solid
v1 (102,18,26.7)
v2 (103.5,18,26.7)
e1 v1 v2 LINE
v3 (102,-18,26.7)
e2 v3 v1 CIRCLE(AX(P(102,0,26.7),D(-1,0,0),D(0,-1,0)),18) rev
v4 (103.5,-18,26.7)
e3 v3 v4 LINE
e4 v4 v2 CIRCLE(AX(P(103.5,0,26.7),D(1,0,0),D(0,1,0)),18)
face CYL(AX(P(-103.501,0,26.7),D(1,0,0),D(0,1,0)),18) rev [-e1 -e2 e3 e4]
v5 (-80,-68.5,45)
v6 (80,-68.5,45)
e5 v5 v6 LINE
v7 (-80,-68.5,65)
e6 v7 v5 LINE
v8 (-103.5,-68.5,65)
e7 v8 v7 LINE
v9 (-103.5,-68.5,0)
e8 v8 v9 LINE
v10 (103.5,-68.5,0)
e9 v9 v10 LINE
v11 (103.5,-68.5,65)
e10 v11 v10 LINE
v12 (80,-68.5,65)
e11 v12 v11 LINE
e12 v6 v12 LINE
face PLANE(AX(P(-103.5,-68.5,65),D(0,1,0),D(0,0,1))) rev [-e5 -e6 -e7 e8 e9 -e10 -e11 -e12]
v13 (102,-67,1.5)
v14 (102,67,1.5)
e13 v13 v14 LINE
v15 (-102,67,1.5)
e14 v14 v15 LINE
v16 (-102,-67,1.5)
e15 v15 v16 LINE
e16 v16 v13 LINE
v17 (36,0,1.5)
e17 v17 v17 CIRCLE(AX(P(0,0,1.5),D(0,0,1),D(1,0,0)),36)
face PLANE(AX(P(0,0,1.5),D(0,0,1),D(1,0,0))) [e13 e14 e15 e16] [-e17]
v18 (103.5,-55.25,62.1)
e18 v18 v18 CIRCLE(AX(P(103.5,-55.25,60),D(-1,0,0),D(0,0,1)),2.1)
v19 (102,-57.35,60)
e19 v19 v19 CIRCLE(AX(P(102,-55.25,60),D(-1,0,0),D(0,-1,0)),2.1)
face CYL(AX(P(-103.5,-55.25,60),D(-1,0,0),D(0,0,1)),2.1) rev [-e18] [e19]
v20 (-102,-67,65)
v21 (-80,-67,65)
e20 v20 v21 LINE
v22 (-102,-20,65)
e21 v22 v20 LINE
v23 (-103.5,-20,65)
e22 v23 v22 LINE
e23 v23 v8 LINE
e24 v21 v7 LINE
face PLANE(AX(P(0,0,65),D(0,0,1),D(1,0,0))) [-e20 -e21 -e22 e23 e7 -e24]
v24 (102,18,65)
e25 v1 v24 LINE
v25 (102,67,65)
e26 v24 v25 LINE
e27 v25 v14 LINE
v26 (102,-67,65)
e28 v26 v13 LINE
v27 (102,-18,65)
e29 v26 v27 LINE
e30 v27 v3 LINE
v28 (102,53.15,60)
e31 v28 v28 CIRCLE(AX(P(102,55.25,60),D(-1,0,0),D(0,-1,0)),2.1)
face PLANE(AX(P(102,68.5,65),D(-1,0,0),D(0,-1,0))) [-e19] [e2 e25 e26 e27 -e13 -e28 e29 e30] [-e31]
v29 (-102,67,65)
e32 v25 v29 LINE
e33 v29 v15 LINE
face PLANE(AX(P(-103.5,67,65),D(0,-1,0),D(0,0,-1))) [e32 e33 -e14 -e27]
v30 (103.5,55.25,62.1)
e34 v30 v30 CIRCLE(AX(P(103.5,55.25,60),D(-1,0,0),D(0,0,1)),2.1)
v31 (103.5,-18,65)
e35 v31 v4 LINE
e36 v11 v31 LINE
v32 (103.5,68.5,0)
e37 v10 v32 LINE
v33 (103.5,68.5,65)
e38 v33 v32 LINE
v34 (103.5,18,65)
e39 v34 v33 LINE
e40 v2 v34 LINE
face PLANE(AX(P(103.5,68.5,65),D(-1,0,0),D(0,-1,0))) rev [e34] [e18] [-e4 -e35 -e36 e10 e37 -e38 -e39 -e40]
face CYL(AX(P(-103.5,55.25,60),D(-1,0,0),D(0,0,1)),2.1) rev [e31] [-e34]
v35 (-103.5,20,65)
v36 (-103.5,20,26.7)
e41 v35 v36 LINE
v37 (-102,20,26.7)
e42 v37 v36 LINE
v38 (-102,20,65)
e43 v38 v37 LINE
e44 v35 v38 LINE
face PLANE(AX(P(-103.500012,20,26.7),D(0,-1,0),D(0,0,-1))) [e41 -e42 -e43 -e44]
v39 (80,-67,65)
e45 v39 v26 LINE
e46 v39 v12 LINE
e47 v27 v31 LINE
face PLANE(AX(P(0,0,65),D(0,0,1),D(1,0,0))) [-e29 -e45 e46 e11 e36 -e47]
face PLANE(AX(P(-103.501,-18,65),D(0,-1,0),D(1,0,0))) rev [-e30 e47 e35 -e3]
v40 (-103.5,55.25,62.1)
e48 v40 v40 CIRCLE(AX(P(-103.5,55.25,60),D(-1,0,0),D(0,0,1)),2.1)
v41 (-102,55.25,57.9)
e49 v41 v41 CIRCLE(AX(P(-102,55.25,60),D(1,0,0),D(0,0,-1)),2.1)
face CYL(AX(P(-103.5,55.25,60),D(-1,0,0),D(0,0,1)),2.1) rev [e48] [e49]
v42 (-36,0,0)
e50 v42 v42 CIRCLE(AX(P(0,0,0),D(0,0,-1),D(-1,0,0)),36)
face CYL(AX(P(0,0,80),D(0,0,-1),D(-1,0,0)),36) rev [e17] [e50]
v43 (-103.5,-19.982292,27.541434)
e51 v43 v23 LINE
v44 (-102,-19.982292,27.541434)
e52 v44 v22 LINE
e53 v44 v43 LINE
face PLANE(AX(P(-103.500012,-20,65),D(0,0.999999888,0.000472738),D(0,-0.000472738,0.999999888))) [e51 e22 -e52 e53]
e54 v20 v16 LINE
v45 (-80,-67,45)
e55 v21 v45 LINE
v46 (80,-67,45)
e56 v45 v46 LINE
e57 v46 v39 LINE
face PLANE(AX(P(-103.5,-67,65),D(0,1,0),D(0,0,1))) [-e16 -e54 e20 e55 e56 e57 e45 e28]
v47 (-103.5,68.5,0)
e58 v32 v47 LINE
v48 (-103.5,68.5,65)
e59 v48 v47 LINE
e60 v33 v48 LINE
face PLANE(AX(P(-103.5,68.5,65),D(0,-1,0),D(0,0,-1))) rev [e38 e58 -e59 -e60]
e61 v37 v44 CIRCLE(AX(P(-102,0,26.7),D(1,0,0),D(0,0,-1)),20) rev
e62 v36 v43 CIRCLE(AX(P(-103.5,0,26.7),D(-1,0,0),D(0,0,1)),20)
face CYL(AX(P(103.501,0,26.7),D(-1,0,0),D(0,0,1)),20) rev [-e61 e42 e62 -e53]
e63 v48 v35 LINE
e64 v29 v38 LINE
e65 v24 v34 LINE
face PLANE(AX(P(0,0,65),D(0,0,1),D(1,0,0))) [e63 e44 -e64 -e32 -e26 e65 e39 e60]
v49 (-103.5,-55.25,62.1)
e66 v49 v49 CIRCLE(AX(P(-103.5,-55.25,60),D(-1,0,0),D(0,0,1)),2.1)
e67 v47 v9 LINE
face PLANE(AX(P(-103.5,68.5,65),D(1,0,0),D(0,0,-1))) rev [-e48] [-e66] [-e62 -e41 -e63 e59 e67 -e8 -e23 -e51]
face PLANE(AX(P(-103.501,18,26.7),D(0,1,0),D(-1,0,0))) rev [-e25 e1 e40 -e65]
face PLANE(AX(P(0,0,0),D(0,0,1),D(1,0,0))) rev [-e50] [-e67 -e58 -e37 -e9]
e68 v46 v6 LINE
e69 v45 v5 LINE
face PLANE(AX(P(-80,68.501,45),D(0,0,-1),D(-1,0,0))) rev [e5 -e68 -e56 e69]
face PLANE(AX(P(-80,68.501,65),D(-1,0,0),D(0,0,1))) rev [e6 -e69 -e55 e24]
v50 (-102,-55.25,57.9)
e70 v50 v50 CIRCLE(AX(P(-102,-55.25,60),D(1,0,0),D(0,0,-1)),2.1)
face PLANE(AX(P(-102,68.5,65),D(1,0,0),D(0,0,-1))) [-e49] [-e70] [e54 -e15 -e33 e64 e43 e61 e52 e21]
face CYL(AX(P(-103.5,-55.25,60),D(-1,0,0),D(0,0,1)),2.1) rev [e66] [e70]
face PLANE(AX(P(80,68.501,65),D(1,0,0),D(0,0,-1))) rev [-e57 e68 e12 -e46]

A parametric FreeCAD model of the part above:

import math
import FreeCAD as App
import Part
import Sketcher
Q = App.Units.Quantity


def faces_at(feature, points):
    """Names of the faces that lie closest to the given points."""
    faces = feature.Shape.Faces
    near = lambda p: min(range(len(faces)), key=lambda i: faces[i].distToShape(Part.Vertex(*p))[0])
    return sorted({f"Face{near(p) + 1}" for p in points})


def add_polygon(sketch, points):
    """Adds a closed chain of lines whose ends are joined by coincident constraints."""
    first, n = sketch.GeometryCount, len(points)
    for a, b in zip(points, points[1:] + points[:1]):
        sketch.addGeometry(Part.LineSegment(App.Vector(*a, 0), App.Vector(*b, 0)), False)
    for i in range(n):
        sketch.addConstraint(Sketcher.Constraint("Coincident", first + i, 2, first + (i + 1) % n, 1))

doc = App.newDocument("Part")
body = doc.addObject("PartDesign::Body", "Body")

sketch1 = doc.addObject("Sketcher::SketchObject", "Sketch")
body.addObject(sketch1)
sketch1.AttachmentSupport = (doc.XY_Plane, [""])
sketch1.MapMode = "FlatFace"
add_polygon(sketch1, [(-104, 68), (-104, -68), (104, -68), (104, 68)])
sketch1.addConstraint([
    Sketcher.Constraint("Vertical", 0),
    Sketcher.Constraint("Horizontal", 1),
    Sketcher.Constraint("Vertical", 2),
    Sketcher.Constraint("Horizontal", 3),
    Sketcher.Constraint("Symmetric", 0, 2, 2, 2, -1, 1),
    Sketcher.Constraint("DistanceX", 1, 1, 1, 2, Q("207 mm")),
    Sketcher.Constraint("DistanceY", 0, 2, 0, 1, Q("137 mm")),
])
pad1 = doc.addObject("PartDesign::Pad", "Pad")
body.addObject(pad1)
pad1.Profile = sketch1
pad1.Length = 65
doc.recompute()

thickness = doc.addObject("PartDesign::Thickness", "Thickness")
body.addObject(thickness)
thickness.Base = (pad1, faces_at(pad1, [(0, 0, 65)]))
thickness.Value = 1.5
thickness.Reversed = True
thickness.Join = "Intersection"

sketch2 = doc.addObject("Sketcher::SketchObject", "Sketch001")
body.addObject(sketch2)
sketch2.AttachmentSupport = (doc.XY_Plane, [""])
sketch2.MapMode = "FlatFace"
sketch2.addGeometry(Part.Circle(App.Vector(0, 0, 0), App.Vector(0, 0, 1), 36), False)
sketch2.addConstraint([
    Sketcher.Constraint("Coincident", 0, 3, -1, 1),
    Sketcher.Constraint("Diameter", 0, Q("72 mm")),
])
pocket1 = doc.addObject("PartDesign::Pocket", "Pocket")
body.addObject(pocket1)
pocket1.Profile = sketch2
pocket1.Length = 80
pocket1.Reversed = True

sketch3 = doc.addObject("Sketcher::SketchObject", "Sketch002")
body.addObject(sketch3)
sketch3.AttachmentSupport = (doc.YZ_Plane, [""])
sketch3.MapMode = "FlatFace"
sketch3.AttachmentOffset = App.Placement(App.Vector(0, 0, 103.5), App.Rotation())
sketch3.addGeometry([
    Part.LineSegment(App.Vector(18, 27, 0), App.Vector(18, 65, 0)),
    Part.LineSegment(App.Vector(18, 65, 0), App.Vector(-18, 65, 0)),
    Part.LineSegment(App.Vector(-18, 65, 0), App.Vector(-18, 27, 0)),
    Part.ArcOfCircle(Part.Circle(App.Vector(0, 27, 0), App.Vector(0, 0, 1), 18), math.radians(180), math.radians(360)),
], False)
sketch3.addConstraint([
    Sketcher.Constraint("Coincident", 0, 2, 1, 1),
    Sketcher.Constraint("Coincident", 1, 2, 2, 1),
    Sketcher.Constraint("Tangent", 2, 2, 3, 1),
    Sketcher.Constraint("Tangent", 3, 2, 0, 1),
    Sketcher.Constraint("Vertical", 0),
    Sketcher.Constraint("Horizontal", 1),
    Sketcher.Constraint("Vertical", 2),
    Sketcher.Constraint("PointOnObject", 3, 3, -2),
    Sketcher.Constraint("Radius", 3, Q("18 mm")),
    Sketcher.Constraint("DistanceY", 0, 1, 0, 2, Q("38.3 mm")),
    Sketcher.Constraint("DistanceY", -1, 1, 0, 2, Q("65 mm")),
])
pocket2 = doc.addObject("PartDesign::Pocket", "Pocket001")
body.addObject(pocket2)
pocket2.Profile = sketch3
pocket2.Type = "UpToFirst"

sketch4 = doc.addObject("Sketcher::SketchObject", "Sketch003")
body.addObject(sketch4)
sketch4.AttachmentSupport = (doc.YZ_Plane, [""])
sketch4.MapMode = "FlatFace"
sketch4.AttachmentOffset = App.Placement(App.Vector(0, 0, -103.5), App.Rotation())
sketch4.addGeometry([
    Part.LineSegment(App.Vector(20, 65, 0), App.Vector(20, 27, 0)),
    Part.ArcOfCircle(Part.Circle(App.Vector(0, 27, 0), App.Vector(0, 0, 1), 20), math.radians(178), math.radians(360)),
    Part.LineSegment(App.Vector(-20, 28, 0), App.Vector(-20, 65, 0)),
    Part.LineSegment(App.Vector(-20, 65, 0), App.Vector(20, 65, 0)),
], False)
sketch4.addConstraint([
    Sketcher.Constraint("Tangent", 0, 2, 1, 2),
    Sketcher.Constraint("Coincident", 1, 1, 2, 1),
    Sketcher.Constraint("Coincident", 2, 2, 3, 1),
    Sketcher.Constraint("Coincident", 3, 2, 0, 1),
    Sketcher.Constraint("Vertical", 0),
    Sketcher.Constraint("Horizontal", 3),
    Sketcher.Constraint("PointOnObject", 1, 3, -2),
    Sketcher.Constraint("Radius", 1, Q("20 mm")),
    Sketcher.Constraint("DistanceX", 3, 1, 3, 2, Q("40 mm")),
    Sketcher.Constraint("DistanceY", 0, 2, 0, 1, Q("38.3 mm")),
    Sketcher.Constraint("DistanceY", -1, 1, 2, 2, Q("65 mm")),
    Sketcher.Constraint("Distance", 2, Q("37.458571 mm")),
])
pocket3 = doc.addObject("PartDesign::Pocket", "Pocket002")
body.addObject(pocket3)
pocket3.Profile = sketch4
pocket3.Type = "UpToFirst"
pocket3.Reversed = True

sketch5 = doc.addObject("Sketcher::SketchObject", "Sketch004")
body.addObject(sketch5)
sketch5.AttachmentSupport = (doc.YZ_Plane, [""])
sketch5.MapMode = "FlatFace"
sketch5.AttachmentOffset = App.Placement(App.Vector(0, 0, -103.5), App.Rotation())
sketch5.addGeometry([
    Part.LineSegment(App.Vector(20, 65, 0), App.Vector(20, 27, 0)),
    Part.ArcOfCircle(Part.Circle(App.Vector(0, 27, 0), App.Vector(0, 0, 1), 20), math.radians(178), math.radians(360)),
    Part.LineSegment(App.Vector(-20, 28, 0), App.Vector(-20, 65, 0)),
    Part.LineSegment(App.Vector(-20, 65, 0), App.Vector(20, 65, 0)),
], False)
sketch5.addConstraint([
    Sketcher.Constraint("Tangent", 0, 2, 1, 2),
    Sketcher.Constraint("Coincident", 1, 1, 2, 1),
    Sketcher.Constraint("Coincident", 2, 2, 3, 1),
    Sketcher.Constraint("Coincident", 3, 2, 0, 1),
    Sketcher.Constraint("Vertical", 0),
    Sketcher.Constraint("Horizontal", 3),
    Sketcher.Constraint("PointOnObject", 1, 3, -2),
    Sketcher.Constraint("Radius", 1, Q("20 mm")),
    Sketcher.Constraint("DistanceX", 3, 1, 3, 2, Q("40 mm")),
    Sketcher.Constraint("DistanceY", 0, 2, 0, 1, Q("38.3 mm")),
    Sketcher.Constraint("DistanceY", -1, 1, 2, 2, Q("65 mm")),
    Sketcher.Constraint("Distance", 2, Q("37.458571 mm")),
])
pocket4 = doc.addObject("PartDesign::Pocket", "Pocket003")
body.addObject(pocket4)
pocket4.Profile = sketch5
pocket4.Length = 228.521977

sketch6 = doc.addObject("Sketcher::SketchObject", "Sketch005")
body.addObject(sketch6)
sketch6.AttachmentSupport = (doc.YZ_Plane, [""])
sketch6.MapMode = "FlatFace"
sketch6.AttachmentOffset = App.Placement(App.Vector(0, 0, -103.5), App.Rotation())
sketch6.addGeometry([
    Part.Circle(App.Vector(55.2, 60, 0), App.Vector(0, 0, 1), 2.1),
    Part.Circle(App.Vector(-55.2, 60, 0), App.Vector(0, 0, 1), 2.1),
], False)
sketch6.addConstraint([
    Sketcher.Constraint("Equal", 0, 1),
    Sketcher.Constraint("Symmetric", 0, 3, 1, 3, -2),
    Sketcher.Constraint("Diameter", 0, Q("4.2 mm")),
    Sketcher.Constraint("DistanceY", -1, 1, 0, 3, Q("60 mm")),
    Sketcher.Constraint("DistanceX", 1, 3, 0, 3, Q("110.5 mm")),
])
doc.recompute()
hole = doc.addObject("PartDesign::Hole", "Hole")
body.addObject(hole)
hole.Profile = sketch6
hole.ThreadType = "None"
hole.Diameter = 4.2
hole.DepthType = "ThroughAll"
hole.Reversed = True

sketch7 = doc.addObject("Sketcher::SketchObject", "Sketch006")
body.addObject(sketch7)
sketch7.AttachmentSupport = (doc.XZ_Plane, [""])
sketch7.MapMode = "FlatFace"
sketch7.AttachmentOffset = App.Placement(App.Vector(0, 0, 68.5), App.Rotation())
add_polygon(sketch7, [(-80, 65), (-80, 45), (80, 45), (80, 65)])
sketch7.addConstraint([
    Sketcher.Constraint("Vertical", 0),
    Sketcher.Constraint("Horizontal", 1),
    Sketcher.Constraint("Vertical", 2),
    Sketcher.Constraint("Horizontal", 3),
    Sketcher.Constraint("DistanceX", 1, 1, 1, 2, Q("160 mm")),
    Sketcher.Constraint("DistanceY", 0, 2, 0, 1, Q("20 mm")),
    Sketcher.Constraint("DistanceX", 0, 2, -1, 1, Q("80 mm")),
    Sketcher.Constraint("DistanceY", -1, 1, 0, 2, Q("45 mm")),
])
pocket5 = doc.addObject("PartDesign::Pocket", "Pocket004")
body.addObject(pocket5)
pocket5.Profile = sketch7
pocket5.Type = "UpToFirst"

doc.recompute()
